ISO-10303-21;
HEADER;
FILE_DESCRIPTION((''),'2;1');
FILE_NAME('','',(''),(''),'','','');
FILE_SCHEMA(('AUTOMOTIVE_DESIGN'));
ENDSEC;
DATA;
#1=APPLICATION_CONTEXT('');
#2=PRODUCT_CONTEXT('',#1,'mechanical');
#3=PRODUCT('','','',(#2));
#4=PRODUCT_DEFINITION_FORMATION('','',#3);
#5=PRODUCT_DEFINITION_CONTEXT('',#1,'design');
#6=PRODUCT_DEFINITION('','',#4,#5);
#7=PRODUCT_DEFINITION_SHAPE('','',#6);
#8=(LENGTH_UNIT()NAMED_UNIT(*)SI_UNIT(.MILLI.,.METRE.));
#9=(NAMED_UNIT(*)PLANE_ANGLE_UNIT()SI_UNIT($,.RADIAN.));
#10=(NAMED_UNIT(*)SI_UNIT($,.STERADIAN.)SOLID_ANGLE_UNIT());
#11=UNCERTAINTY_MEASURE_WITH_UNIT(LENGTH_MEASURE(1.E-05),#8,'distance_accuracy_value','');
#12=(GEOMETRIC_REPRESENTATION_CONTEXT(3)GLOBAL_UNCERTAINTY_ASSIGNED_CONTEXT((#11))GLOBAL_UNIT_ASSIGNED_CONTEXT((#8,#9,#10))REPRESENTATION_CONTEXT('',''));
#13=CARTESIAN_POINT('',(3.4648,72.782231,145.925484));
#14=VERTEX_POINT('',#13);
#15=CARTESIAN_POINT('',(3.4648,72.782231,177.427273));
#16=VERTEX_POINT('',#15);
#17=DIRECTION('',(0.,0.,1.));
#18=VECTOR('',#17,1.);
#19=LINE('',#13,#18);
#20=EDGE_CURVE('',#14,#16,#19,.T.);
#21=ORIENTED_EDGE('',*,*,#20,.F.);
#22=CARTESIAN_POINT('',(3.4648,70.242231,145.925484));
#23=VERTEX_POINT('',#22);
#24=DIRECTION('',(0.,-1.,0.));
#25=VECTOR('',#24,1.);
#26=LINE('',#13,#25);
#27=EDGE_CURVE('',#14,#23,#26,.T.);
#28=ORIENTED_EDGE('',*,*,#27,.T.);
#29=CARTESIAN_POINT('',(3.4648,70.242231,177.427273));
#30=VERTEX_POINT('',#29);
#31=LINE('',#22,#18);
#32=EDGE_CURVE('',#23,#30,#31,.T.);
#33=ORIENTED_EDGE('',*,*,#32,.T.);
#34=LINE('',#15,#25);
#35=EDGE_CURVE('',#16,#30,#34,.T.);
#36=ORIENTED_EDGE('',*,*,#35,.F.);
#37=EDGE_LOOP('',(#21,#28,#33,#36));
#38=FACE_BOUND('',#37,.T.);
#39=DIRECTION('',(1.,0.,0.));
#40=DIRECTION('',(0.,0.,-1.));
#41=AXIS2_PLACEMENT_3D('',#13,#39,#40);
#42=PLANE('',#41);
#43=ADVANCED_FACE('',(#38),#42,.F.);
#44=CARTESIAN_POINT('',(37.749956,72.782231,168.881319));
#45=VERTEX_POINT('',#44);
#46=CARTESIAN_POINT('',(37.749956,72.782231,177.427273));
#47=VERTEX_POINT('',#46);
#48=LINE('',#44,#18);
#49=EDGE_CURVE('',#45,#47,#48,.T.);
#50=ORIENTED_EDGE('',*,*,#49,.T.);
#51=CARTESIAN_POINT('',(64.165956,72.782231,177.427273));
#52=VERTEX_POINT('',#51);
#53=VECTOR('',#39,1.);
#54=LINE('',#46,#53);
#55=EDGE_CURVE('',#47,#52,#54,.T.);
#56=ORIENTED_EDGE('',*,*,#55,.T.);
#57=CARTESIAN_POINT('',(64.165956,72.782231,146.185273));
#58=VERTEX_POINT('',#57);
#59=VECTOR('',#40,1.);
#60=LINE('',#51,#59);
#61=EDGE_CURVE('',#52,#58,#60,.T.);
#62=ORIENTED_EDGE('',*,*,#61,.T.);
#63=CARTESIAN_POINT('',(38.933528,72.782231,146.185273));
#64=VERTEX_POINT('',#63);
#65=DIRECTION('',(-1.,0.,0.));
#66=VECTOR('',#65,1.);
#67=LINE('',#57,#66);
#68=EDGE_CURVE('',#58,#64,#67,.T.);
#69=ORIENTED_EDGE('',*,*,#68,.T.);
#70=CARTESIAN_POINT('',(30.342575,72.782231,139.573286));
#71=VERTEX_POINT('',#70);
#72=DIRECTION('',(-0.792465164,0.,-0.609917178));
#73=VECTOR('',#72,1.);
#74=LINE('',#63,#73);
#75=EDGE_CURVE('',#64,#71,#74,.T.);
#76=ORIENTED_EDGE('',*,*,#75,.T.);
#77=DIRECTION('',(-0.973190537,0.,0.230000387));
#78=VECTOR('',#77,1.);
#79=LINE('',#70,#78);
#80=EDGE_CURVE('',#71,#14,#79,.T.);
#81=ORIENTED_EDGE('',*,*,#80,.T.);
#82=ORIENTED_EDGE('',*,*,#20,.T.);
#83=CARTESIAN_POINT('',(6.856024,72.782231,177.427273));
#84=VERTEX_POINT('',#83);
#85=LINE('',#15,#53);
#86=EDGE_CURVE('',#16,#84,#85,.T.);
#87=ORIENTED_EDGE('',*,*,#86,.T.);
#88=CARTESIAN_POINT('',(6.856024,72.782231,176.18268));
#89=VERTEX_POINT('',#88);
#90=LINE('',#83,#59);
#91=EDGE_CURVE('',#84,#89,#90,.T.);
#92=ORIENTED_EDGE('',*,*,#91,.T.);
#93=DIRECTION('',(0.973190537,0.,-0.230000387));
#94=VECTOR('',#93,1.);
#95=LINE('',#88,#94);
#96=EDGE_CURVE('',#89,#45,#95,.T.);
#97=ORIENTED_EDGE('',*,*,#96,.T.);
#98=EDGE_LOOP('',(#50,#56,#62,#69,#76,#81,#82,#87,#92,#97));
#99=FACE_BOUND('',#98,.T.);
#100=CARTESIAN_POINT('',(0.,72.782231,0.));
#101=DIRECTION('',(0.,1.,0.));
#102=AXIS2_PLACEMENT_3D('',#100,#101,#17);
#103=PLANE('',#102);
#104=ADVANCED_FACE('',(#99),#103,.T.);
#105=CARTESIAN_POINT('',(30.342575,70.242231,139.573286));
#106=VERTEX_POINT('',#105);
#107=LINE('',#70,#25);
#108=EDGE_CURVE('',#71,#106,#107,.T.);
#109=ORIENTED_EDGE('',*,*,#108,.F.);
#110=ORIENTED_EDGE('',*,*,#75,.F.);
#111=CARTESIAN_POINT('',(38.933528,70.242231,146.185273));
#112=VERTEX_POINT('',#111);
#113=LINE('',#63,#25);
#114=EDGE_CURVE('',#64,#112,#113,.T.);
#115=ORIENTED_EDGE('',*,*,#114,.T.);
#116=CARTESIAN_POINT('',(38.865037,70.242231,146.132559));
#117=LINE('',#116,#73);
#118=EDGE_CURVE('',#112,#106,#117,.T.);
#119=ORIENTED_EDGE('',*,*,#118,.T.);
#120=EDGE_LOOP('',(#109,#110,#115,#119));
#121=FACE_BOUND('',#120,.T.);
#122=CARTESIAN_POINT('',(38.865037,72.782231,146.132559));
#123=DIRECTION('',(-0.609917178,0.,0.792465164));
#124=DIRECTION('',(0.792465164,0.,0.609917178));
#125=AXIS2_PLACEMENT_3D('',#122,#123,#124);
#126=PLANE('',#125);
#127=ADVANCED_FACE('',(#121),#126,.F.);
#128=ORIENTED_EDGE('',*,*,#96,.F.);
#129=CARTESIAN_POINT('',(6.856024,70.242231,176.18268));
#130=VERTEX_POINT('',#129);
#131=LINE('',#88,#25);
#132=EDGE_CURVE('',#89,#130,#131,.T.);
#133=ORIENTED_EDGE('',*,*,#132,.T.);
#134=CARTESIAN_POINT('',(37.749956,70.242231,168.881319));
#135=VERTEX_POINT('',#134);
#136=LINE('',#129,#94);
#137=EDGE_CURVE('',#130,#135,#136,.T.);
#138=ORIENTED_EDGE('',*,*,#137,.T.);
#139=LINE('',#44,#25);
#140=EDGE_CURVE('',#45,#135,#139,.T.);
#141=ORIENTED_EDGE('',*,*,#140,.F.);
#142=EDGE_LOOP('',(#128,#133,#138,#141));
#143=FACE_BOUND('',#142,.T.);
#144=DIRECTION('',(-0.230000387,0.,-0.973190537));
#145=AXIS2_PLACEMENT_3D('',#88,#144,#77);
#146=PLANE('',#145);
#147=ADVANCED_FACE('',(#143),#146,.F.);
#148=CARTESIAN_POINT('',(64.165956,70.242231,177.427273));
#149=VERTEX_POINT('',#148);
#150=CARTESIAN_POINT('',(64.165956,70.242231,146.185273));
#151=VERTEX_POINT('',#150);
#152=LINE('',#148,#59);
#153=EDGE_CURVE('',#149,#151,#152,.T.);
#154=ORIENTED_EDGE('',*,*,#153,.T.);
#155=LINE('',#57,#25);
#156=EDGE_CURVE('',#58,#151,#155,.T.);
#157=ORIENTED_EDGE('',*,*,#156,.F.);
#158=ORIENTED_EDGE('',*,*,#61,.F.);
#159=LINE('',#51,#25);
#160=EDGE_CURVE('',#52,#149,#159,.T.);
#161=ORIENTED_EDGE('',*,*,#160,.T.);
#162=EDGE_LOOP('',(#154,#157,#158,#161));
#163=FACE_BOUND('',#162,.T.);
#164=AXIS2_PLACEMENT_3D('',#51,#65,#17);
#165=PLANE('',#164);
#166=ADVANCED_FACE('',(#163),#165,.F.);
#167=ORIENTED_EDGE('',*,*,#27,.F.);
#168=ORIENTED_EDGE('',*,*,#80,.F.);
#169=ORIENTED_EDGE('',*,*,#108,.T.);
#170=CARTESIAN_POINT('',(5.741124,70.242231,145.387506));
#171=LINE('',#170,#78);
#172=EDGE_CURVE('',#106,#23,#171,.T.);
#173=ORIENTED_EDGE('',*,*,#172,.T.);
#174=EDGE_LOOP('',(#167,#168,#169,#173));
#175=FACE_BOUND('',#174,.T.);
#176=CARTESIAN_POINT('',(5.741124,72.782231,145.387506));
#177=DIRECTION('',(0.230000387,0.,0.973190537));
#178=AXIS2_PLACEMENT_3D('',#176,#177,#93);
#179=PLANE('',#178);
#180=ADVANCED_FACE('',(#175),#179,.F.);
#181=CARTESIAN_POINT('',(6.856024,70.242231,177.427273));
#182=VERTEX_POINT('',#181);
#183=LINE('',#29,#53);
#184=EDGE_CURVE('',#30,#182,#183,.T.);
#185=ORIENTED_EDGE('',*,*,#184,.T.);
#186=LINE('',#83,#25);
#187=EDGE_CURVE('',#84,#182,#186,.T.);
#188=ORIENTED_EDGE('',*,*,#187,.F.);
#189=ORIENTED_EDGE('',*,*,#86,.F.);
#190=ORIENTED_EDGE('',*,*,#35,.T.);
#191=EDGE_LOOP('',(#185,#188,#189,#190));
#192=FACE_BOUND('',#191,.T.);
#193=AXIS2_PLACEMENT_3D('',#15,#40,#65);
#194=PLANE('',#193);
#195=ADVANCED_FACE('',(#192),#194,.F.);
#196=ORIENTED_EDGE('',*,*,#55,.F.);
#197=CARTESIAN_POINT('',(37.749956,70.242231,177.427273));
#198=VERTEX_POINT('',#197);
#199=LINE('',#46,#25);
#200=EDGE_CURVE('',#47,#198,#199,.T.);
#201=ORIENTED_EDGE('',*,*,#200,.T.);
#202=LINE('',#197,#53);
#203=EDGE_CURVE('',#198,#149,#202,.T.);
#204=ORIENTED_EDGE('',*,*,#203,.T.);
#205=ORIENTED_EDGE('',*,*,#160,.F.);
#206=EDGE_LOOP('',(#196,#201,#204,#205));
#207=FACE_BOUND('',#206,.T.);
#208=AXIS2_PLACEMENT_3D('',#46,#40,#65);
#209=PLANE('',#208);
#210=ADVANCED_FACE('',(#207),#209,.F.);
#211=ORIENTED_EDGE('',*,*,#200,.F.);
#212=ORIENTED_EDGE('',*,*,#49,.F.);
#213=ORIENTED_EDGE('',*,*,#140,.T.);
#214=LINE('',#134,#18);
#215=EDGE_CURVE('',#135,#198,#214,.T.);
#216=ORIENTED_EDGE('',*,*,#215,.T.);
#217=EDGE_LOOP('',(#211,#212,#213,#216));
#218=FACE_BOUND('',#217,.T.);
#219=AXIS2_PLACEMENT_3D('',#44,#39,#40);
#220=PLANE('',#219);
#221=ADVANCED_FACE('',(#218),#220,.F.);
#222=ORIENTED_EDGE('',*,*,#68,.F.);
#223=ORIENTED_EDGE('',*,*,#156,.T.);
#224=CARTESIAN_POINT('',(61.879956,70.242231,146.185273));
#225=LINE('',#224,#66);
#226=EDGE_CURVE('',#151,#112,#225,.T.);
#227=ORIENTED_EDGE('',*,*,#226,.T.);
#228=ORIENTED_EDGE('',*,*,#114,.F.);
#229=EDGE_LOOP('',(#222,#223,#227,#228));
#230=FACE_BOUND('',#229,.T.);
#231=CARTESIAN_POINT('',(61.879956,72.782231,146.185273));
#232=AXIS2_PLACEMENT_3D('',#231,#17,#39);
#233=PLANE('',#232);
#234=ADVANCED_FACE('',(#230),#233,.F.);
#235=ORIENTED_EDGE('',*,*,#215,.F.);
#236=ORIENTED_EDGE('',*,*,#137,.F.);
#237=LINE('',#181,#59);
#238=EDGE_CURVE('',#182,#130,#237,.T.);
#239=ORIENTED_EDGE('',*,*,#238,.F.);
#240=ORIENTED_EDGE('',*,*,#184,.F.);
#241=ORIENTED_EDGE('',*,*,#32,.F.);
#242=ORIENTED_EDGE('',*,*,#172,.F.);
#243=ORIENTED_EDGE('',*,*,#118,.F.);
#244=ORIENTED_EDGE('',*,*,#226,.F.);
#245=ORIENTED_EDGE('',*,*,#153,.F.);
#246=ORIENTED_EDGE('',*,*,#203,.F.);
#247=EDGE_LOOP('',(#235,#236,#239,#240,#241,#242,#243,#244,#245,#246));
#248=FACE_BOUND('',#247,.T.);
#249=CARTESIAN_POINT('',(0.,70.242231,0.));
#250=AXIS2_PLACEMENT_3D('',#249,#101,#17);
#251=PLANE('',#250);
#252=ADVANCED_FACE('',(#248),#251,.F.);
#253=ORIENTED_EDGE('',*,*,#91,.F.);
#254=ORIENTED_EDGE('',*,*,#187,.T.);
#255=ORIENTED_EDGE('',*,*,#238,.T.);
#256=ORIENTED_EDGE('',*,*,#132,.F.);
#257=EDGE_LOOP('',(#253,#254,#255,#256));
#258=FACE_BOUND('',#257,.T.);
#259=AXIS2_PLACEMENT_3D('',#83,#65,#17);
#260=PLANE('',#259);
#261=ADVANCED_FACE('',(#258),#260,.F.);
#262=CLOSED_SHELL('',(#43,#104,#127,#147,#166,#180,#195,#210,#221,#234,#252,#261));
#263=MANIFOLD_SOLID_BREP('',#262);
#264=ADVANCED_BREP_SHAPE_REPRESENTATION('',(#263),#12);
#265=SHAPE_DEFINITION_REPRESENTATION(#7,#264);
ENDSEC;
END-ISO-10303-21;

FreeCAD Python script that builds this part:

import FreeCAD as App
import Part
import Sketcher
Q = App.Units.Quantity


def add_polygon(sketch, points):
    """Adds a closed chain of lines whose ends are joined by coincident constraints."""
    first, n = sketch.GeometryCount, len(points)
    for a, b in zip(points, points[1:] + points[:1]):
        sketch.addGeometry(Part.LineSegment(App.Vector(*a, 0), App.Vector(*b, 0)), False)
    for i in range(n):
        sketch.addConstraint(Sketcher.Constraint("Coincident", first + i, 2, first + (i + 1) % n, 1))

doc = App.newDocument("Part")
body = doc.addObject("PartDesign::Body", "Body")

# Sketch on XZ plane
sketch1 = body.newObject("Sketcher::SketchObject", "Sketch")
sketch1.AttachmentSupport = (doc.getObject("XZ_Plane"), [""])
sketch1.MapMode = "FlatFace"
sketch1.AttachmentOffset = App.Placement(App.Vector(0, 0, -70.242231), App.Rotation())
add_polygon(sketch1, [(64.165956, 146.185273), (38.933528, 146.185273), (38.865037, 146.132559), (30.342575, 139.573286), (27.988259, 140.129697), (24.280403, 141.005998), (9.44898, 144.511204), (3.4648, 145.925484), (3.4648, 177.427273), (6.856024, 177.427273), (6.856024, 176.18268), (37.749956, 168.881319), (37.749956, 177.427273), (64.165956, 177.427273)])  # lines 0-13
sketch1.addConstraint([
    Sketcher.Constraint("Horizontal", 0),
    Sketcher.Constraint("Vertical", 7),
    Sketcher.Constraint("Horizontal", 8),
    Sketcher.Constraint("Vertical", 9),
    Sketcher.Constraint("Vertical", 11),
    Sketcher.Constraint("Horizontal", 12),
    Sketcher.Constraint("Vertical", 13),
    Sketcher.Constraint("Distance", 5, Q("0.6 in")),
    Sketcher.Constraint("DistanceX", 12, 1, 12, 2, Q("1.04 in")),
    Sketcher.Constraint("DistanceY", 13, 2, 13, 1, Q("1.23 in")),
    Sketcher.Constraint("Distance", 4, Q("0.15 in")),
    Sketcher.Constraint("DistanceX", -1, 1, 3, 2, Q("1.1019 in")),
    Sketcher.Constraint("DistanceY", 3, 2, 4, 2, Q("0.0345001 in")),
    Sketcher.Constraint("DistanceY", 7, 1, 7, 2, Q("31.501789 mm")),
    Sketcher.Constraint("DistanceY", -1, 1, 4, 2, Q("141.005998 mm")),
    Sketcher.Constraint("DistanceX", -1, 1, 6, 2, Q("3.4648 mm")),
    Sketcher.Constraint("DistanceX", 0, 2, 0, 1, Q("25.232428 mm")),
    Sketcher.Constraint("DistanceX", 8, 1, 8, 2, Q("3.391225 mm")),
    Sketcher.Constraint("DistanceY", 9, 2, 9, 1, Q("1.244593 mm")),
    Sketcher.Constraint("DistanceY", 11, 1, 11, 2, Q("8.545955 mm")),
    Sketcher.Constraint("DistanceY", -1, 1, 1, 2, Q("146.132559 mm")),
    Sketcher.Constraint("DistanceX", -1, 1, 5, 2, Q("9.44898 mm")),
    Sketcher.Constraint("DistanceY", -1, 1, 9, 2, Q("176.18268 mm")),
    Sketcher.Constraint("DistanceY", -1, 1, 10, 2, Q("168.881319 mm")),
    Sketcher.Constraint("DistanceX", 1, 2, 0, 2, Q("0.068491 mm")),
    Sketcher.Constraint("DistanceX", 2, 2, 1, 2, Q("8.522461 mm")),
    Sketcher.Constraint("DistanceY", 2, 2, 3, 2, Q("0.556411 mm")),
    Sketcher.Constraint("DistanceX", 3, 2, 0, 2, Q("10.945268 mm")),
])
pad1 = body.newObject("PartDesign::Pad", "Pad")
pad1.Profile = sketch1
pad1.Length = Q("0.1 in")
pad1.Reversed = True

doc.recompute()
